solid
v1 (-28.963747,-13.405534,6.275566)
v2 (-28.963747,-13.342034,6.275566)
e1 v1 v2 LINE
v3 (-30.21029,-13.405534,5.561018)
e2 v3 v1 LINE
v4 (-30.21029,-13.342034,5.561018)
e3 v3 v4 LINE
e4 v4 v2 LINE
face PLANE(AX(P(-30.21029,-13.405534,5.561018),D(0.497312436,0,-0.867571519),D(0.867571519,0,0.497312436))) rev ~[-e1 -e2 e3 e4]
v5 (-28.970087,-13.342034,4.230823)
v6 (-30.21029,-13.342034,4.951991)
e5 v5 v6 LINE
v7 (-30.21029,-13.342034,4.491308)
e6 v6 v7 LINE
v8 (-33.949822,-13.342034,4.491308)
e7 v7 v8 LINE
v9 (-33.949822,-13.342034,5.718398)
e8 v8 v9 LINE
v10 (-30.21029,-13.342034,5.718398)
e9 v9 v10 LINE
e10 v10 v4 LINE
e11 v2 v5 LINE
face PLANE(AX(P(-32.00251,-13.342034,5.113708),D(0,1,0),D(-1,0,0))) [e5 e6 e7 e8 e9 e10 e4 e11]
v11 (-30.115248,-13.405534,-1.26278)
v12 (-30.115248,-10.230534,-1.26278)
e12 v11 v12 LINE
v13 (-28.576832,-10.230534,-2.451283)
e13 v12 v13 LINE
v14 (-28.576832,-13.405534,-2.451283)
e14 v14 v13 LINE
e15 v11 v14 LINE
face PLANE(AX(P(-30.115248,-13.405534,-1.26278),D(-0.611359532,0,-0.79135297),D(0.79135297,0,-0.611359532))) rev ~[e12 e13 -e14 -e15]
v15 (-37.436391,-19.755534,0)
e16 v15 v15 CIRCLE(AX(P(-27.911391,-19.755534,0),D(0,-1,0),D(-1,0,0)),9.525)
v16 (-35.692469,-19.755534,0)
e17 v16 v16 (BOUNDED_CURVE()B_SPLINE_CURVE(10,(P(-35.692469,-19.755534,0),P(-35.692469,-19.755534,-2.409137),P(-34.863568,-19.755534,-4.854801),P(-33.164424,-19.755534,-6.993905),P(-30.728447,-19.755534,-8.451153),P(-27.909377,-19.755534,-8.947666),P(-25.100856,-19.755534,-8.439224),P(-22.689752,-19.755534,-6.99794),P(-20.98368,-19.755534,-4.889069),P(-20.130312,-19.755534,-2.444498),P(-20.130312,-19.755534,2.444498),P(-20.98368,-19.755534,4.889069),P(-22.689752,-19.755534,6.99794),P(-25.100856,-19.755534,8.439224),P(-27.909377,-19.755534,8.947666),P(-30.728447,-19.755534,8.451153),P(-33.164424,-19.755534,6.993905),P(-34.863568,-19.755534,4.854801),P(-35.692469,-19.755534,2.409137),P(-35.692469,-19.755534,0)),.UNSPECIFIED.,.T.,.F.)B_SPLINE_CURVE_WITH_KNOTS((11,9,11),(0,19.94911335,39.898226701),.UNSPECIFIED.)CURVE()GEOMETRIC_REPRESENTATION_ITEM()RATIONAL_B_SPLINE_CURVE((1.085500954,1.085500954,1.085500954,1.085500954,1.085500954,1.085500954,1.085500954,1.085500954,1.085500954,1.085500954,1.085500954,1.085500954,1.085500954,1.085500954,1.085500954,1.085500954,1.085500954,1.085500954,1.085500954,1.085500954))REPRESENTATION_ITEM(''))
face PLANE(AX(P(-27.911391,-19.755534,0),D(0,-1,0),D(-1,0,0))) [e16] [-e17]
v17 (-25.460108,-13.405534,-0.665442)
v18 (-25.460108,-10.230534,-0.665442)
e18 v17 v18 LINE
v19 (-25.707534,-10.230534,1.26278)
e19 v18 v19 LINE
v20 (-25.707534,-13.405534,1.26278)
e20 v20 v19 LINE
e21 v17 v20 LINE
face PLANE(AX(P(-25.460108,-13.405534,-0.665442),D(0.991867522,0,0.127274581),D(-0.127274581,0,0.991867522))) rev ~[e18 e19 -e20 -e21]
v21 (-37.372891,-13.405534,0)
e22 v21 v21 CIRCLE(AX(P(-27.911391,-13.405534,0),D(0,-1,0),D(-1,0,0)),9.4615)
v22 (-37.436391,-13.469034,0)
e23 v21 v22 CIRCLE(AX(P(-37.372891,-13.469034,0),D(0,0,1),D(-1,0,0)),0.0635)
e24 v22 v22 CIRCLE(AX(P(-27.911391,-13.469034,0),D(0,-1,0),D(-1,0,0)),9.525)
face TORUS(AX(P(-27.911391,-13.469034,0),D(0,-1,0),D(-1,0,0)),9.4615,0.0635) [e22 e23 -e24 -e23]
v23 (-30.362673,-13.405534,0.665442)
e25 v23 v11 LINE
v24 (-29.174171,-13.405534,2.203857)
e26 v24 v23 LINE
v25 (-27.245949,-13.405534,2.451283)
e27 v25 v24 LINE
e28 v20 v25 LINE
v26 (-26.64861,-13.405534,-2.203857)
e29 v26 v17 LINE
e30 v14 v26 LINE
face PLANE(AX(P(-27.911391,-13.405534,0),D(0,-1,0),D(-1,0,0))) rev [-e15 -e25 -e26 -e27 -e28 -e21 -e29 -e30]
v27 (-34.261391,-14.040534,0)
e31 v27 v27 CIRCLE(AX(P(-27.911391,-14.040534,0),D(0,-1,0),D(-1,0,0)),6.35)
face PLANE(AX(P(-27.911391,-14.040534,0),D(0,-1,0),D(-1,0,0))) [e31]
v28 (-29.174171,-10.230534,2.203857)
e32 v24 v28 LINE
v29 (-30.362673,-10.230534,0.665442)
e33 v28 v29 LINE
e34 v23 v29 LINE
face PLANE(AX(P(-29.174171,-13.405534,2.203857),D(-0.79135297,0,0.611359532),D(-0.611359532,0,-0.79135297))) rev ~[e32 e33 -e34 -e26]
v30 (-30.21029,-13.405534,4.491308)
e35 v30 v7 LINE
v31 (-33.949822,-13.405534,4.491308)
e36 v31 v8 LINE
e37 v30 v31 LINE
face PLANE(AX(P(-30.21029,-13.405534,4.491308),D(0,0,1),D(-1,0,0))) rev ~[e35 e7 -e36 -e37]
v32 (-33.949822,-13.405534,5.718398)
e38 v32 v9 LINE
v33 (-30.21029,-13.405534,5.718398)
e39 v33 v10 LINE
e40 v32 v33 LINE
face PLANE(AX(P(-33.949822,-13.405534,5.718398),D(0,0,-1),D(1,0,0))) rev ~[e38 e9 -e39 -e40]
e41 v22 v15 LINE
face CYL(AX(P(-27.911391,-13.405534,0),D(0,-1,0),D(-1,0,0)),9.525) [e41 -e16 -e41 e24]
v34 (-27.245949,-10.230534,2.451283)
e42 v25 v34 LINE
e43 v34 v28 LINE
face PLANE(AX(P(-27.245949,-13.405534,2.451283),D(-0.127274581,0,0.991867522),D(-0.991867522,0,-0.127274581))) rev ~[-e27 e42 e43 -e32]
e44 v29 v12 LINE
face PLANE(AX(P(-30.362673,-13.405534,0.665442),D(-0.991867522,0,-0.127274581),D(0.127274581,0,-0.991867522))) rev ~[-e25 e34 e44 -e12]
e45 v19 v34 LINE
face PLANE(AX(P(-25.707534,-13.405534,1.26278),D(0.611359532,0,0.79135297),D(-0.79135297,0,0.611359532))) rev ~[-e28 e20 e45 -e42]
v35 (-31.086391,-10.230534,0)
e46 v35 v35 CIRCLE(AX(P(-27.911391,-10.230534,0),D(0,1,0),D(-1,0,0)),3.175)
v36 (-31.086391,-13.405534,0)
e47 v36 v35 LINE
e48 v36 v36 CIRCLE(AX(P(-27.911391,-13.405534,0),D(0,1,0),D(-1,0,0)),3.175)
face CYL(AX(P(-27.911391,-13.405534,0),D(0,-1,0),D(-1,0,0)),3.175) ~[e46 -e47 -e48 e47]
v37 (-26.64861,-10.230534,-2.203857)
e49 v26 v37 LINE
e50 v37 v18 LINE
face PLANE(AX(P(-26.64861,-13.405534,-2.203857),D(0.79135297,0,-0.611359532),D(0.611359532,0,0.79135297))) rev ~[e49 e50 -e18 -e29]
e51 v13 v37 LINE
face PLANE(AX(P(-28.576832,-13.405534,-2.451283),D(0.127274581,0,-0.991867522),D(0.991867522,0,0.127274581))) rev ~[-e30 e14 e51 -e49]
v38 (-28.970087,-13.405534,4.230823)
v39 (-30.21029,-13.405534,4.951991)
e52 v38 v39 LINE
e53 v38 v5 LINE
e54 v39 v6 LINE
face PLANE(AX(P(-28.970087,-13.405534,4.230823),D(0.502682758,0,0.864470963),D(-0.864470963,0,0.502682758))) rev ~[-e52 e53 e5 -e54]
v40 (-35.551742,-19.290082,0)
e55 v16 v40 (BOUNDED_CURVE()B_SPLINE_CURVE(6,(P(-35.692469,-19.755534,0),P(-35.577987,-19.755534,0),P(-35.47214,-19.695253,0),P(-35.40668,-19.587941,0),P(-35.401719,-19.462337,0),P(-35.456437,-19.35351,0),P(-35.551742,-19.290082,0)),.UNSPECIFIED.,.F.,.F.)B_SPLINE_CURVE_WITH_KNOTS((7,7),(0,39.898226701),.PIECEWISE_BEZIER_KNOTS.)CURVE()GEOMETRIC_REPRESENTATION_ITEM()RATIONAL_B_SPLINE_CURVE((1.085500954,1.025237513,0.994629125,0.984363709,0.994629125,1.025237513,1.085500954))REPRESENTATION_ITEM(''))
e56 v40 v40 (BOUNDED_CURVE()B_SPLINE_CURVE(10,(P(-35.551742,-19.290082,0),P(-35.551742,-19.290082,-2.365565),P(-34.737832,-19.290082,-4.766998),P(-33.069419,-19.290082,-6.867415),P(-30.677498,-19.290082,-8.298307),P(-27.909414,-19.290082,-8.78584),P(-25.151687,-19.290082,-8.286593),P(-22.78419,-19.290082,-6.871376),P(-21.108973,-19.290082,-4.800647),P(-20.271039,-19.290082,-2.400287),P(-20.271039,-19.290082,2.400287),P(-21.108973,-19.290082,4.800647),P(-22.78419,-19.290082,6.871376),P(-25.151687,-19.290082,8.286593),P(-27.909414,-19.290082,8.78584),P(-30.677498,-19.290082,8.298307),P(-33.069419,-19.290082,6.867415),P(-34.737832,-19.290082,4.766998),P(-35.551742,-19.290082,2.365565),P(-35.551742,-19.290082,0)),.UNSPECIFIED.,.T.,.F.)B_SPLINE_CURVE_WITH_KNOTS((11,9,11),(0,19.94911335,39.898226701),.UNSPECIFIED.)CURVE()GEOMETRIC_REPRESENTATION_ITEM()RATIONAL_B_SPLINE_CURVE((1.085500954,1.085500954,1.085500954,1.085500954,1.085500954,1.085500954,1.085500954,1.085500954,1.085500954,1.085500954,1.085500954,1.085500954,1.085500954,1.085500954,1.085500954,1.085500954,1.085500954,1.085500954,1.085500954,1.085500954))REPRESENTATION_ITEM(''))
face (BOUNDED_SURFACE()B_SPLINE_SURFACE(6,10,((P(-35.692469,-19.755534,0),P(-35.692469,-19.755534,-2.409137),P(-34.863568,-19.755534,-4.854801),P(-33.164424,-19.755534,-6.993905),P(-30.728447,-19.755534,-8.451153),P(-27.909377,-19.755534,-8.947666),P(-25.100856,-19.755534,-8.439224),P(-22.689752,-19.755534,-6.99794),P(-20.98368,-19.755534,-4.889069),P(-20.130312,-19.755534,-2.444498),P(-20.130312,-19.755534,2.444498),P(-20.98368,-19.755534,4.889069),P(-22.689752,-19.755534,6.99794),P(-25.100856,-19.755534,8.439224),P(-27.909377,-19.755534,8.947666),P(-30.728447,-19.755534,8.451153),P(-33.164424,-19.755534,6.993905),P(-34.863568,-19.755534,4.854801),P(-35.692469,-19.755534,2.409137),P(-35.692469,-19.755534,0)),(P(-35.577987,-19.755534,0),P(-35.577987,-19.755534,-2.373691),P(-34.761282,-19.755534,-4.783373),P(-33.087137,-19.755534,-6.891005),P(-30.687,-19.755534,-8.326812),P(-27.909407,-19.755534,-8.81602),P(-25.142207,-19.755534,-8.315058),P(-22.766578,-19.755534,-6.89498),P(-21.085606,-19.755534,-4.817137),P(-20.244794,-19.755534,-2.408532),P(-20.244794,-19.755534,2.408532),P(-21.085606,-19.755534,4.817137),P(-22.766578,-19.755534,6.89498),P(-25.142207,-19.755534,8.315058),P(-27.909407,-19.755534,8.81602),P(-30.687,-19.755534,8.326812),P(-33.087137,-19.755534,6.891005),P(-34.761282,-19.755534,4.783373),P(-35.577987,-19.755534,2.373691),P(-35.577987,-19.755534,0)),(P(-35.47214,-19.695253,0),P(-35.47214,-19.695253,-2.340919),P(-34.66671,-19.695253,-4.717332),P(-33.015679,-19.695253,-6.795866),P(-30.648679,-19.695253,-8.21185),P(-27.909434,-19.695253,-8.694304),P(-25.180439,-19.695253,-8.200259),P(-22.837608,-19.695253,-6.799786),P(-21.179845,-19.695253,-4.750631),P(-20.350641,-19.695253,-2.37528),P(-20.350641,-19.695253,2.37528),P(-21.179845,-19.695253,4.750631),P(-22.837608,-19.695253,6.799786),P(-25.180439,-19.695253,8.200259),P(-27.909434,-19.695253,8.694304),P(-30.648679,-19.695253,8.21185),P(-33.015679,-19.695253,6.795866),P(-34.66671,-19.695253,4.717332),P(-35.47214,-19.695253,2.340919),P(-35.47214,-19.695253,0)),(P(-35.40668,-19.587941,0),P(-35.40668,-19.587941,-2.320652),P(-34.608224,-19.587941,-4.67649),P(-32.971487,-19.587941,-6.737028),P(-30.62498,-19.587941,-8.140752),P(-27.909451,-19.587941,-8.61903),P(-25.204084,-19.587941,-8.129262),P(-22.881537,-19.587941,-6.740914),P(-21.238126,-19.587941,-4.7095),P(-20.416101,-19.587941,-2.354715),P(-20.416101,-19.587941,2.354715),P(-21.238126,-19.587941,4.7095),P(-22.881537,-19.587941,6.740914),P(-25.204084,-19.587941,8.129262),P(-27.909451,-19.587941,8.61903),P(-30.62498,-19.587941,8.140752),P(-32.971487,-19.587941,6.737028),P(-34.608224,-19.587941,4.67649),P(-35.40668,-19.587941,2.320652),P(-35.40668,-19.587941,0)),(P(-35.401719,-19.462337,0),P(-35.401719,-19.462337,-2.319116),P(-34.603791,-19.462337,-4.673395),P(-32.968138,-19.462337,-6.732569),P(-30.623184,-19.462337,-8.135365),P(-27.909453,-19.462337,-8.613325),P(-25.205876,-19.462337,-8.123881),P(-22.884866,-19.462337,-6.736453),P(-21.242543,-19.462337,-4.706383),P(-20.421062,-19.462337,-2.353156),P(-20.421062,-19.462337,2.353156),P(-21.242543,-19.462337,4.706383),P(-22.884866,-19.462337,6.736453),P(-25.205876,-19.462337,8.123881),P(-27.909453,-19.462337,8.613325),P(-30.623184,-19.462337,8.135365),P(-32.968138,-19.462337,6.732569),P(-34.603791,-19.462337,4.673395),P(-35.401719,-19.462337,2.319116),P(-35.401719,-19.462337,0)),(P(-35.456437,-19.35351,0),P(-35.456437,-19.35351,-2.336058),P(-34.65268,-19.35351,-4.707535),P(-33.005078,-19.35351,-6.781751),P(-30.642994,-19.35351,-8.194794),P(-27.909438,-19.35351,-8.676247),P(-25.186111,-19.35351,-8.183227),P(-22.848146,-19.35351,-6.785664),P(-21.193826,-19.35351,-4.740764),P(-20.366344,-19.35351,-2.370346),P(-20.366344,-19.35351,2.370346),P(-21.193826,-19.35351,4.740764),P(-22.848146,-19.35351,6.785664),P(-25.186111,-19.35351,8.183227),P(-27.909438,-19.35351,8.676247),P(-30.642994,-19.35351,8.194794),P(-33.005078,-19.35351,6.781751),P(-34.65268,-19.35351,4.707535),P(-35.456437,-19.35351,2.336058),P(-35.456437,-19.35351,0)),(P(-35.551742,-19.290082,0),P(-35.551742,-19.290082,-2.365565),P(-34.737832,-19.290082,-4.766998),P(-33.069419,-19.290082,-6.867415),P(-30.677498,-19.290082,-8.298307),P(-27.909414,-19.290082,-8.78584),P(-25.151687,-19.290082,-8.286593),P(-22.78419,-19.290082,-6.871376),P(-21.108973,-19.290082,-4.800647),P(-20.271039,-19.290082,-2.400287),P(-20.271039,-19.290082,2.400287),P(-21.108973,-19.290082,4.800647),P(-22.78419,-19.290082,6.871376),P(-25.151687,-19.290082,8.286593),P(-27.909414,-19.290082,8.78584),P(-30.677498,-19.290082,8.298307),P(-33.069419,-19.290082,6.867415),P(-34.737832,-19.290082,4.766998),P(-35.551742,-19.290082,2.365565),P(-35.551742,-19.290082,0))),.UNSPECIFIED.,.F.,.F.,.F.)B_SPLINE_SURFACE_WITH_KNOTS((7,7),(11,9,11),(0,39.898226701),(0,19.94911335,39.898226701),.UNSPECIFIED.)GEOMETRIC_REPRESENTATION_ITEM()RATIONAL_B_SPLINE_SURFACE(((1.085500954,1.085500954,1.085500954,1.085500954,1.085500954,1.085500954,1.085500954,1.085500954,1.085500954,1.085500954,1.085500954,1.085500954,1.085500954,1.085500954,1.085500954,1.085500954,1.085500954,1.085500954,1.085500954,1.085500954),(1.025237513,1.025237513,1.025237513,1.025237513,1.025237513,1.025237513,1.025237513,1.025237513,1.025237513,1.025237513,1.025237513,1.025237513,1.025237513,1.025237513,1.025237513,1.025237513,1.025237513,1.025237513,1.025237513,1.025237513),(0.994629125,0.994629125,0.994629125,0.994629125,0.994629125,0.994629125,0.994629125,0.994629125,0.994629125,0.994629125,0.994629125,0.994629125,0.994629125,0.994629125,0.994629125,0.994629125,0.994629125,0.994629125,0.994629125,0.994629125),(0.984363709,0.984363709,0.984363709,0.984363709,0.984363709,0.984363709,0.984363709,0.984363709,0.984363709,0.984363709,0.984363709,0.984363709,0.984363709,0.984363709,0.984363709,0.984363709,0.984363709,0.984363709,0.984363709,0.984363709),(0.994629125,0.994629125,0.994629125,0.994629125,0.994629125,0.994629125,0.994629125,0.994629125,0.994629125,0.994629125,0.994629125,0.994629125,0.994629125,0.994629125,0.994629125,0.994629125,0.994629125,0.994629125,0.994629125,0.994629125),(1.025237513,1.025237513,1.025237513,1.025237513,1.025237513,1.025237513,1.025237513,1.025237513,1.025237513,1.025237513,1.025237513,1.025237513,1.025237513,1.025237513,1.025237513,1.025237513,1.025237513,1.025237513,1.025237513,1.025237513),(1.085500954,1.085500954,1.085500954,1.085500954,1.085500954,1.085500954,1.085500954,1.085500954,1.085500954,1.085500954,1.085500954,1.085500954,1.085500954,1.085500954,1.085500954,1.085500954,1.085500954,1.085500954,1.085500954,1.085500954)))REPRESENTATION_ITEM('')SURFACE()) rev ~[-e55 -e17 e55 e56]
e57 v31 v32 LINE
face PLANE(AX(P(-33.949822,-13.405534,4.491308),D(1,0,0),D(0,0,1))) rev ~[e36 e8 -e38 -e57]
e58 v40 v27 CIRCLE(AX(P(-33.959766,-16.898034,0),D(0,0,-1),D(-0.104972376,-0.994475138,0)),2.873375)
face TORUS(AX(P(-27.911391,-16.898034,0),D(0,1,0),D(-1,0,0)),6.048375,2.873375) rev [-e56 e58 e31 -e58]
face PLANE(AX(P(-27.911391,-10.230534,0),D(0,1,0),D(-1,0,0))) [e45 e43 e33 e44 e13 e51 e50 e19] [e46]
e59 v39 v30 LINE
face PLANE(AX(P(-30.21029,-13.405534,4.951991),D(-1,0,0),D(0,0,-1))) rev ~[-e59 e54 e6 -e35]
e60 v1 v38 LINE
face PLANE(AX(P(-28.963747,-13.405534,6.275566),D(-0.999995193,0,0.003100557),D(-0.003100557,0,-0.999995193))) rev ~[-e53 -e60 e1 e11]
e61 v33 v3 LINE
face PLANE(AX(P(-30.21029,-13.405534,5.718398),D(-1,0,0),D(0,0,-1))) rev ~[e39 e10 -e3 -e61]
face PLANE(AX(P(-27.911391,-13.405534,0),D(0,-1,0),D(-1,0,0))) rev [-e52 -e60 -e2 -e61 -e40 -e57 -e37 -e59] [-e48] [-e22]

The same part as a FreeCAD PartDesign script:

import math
import FreeCAD as App
import Part
import Sketcher

V = App.Vector
Q = App.Units.Quantity


def edges_at(feature, points):
    """Names of the edges that pass closest to the given points."""
    edges = feature.Shape.Edges
    near = lambda p: min(range(len(edges)), key=lambda i: edges[i].distToShape(Part.Vertex(*p))[0])
    return sorted({f"Edge{near(p) + 1}" for p in points})


def add_polygon(sketch, points):
    """Adds a closed chain of lines whose ends are joined by coincident constraints."""
    first, n = sketch.GeometryCount, len(points)
    for a, b in zip(points, points[1:] + points[:1]):
        sketch.addGeometry(Part.LineSegment(App.Vector(*a, 0), App.Vector(*b, 0)), False)
    for i in range(n):
        sketch.addConstraint(Sketcher.Constraint("Coincident", first + i, 2, first + (i + 1) % n, 1))

doc = App.newDocument("Part")
body = doc.addObject("PartDesign::Body", "Body")

# Sketch on XY plane
sketch1 = doc.addObject("Sketcher::SketchObject", "Sketch")
body.addObject(sketch1)
sketch1.AttachmentSupport = (doc.XY_Plane, [""])
sketch1.MapMode = "FlatFace"
sketch1.addGeometry(Part.LineSegment(V(-27.9, -13.4, 0), V(-37.4, -13.4, 0)), False)
sketch1.addGeometry(Part.LineSegment(V(-37.4, -13.4, 0), V(-37.4, -19.8, 0)), False)
sketch1.addGeometry(Part.LineSegment(V(-37.4, -19.8, 0), V(-34.3, -19.8, 0)), False)
sketch1.addGeometry(Part.ArcOfCircle(Part.Circle(V(-34, -16.9, 0), V(0, 0, 1), 2.9), math.radians(96), math.radians(264)), False)
sketch1.addGeometry(Part.LineSegment(V(-34.3, -14, 0), V(-27.9, -14, 0)), False)
sketch1.addGeometry(Part.LineSegment(V(-27.9, -14, 0), V(-27.9, -13.4, 0)), False)
sketch1.addGeometry(Part.LineSegment(V(-27.9, -13.4, 0), V(-27.9, -19.8, 0)), True)  # axis
sketch1.addConstraint(Sketcher.Constraint("Coincident", 0, 2, 1, 1))
sketch1.addConstraint(Sketcher.Constraint("Coincident", 1, 2, 2, 1))
sketch1.addConstraint(Sketcher.Constraint("Coincident", 2, 2, 3, 2))
sketch1.addConstraint(Sketcher.Constraint("Coincident", 3, 1, 4, 1))
sketch1.addConstraint(Sketcher.Constraint("Coincident", 4, 2, 5, 1))
sketch1.addConstraint(Sketcher.Constraint("Coincident", 5, 2, 0, 1))
sketch1.addConstraint(Sketcher.Constraint("Horizontal", 0))
sketch1.addConstraint(Sketcher.Constraint("Vertical", 1))
sketch1.addConstraint(Sketcher.Constraint("Horizontal", 2))
sketch1.addConstraint(Sketcher.Constraint("Horizontal", 4))
sketch1.addConstraint(Sketcher.Constraint("Vertical", 5))
sketch1.addConstraint(Sketcher.Constraint("Vertical", 6))
sketch1.addConstraint(Sketcher.Constraint("Coincident", 6, 1, 5, 2))
sketch1.addConstraint(Sketcher.Constraint("Horizontal", 2, 2, 6, 2))
sketch1.addConstraint(Sketcher.Constraint("Vertical", 2, 2, 3, 1))
sketch1.addConstraint(Sketcher.Constraint("Equal", 4, 1))
sketch1.addConstraint(Sketcher.Constraint("DistanceX", 4, 1, 4, 2, Q("0.25 in")))
sketch1.addConstraint(Sketcher.Constraint("DistanceX", 0, 2, 0, 1, Q("0.375 in")))
sketch1.addConstraint(Sketcher.Constraint("DistanceY", 5, 1, 5, 2, Q("0.025 in")))
sketch1.addConstraint(Sketcher.Constraint("Radius", 3, Q("2.873375 mm")))
sketch1.addConstraint(Sketcher.Constraint("DistanceX", 0, 2, -1, 1, Q("37.436391 mm")))
sketch1.addConstraint(Sketcher.Constraint("DistanceY", 3, 3, -1, 1, Q("16.898034 mm")))
revolution = doc.addObject("PartDesign::Revolution", "Revolution")
body.addObject(revolution)
revolution.Profile = sketch1
revolution.ReferenceAxis = (sketch1, ["Axis0"])
revolution.Angle = 360

# Sketch on XZ plane
sketch2 = doc.addObject("Sketcher::SketchObject", "Sketch001")
body.addObject(sketch2)
sketch2.AttachmentSupport = (doc.XZ_Plane, [""])
sketch2.MapMode = "FlatFace"
sketch2.AttachmentOffset = App.Placement(V(0, 0, 13.405534), App.Rotation())
sketch2.addGeometry(Part.Circle(V(-27.9, 0, 0), V(0, 0, 1), 3.2), False)  # 0
add_polygon(sketch2, [(-30.4, 0.7), (-30.1, -1.3), (-28.6, -2.5), (-26.6, -2.2), (-25.5, -0.7), (-25.7, 1.3), (-27.2, 2.5), (-29.2, 2.2)])  # lines 1-8
sketch2.addConstraint(Sketcher.Constraint("PointOnObject", 0, 3, -1))
sketch2.addConstraint(Sketcher.Constraint("Perpendicular", 1, 3))
sketch2.addConstraint(Sketcher.Constraint("Perpendicular", 2, 4))
sketch2.addConstraint(Sketcher.Constraint("Perpendicular", 3, 5))
sketch2.addConstraint(Sketcher.Constraint("Perpendicular", 4, 6))
sketch2.addConstraint(Sketcher.Constraint("Perpendicular", 5, 7))
sketch2.addConstraint(Sketcher.Constraint("Perpendicular", 6, 8))
sketch2.addConstraint(Sketcher.Constraint("Equal", 1, 2))
sketch2.addConstraint(Sketcher.Constraint("Equal", 2, 3))
sketch2.addConstraint(Sketcher.Constraint("Equal", 3, 4))
sketch2.addConstraint(Sketcher.Constraint("Equal", 4, 5))
sketch2.addConstraint(Sketcher.Constraint("Equal", 5, 6))
sketch2.addConstraint(Sketcher.Constraint("Diameter", 0, Q("0.25 in")))
sketch2.addConstraint(Sketcher.Constraint("DistanceX", 2, 2, 5, 2, Q("2.869299 mm")))
sketch2.addConstraint(Sketcher.Constraint("Distance", 1, Q("1.944032 mm")))
sketch2.addConstraint(Sketcher.Constraint("DistanceX", 0, 3, -1, 1, Q("27.911391 mm")))
sketch2.addConstraint(Sketcher.Constraint("DistanceY", 1, 2, -1, 1, Q("1.26278 mm")))
sketch2.addConstraint(Sketcher.Constraint("DistanceX", 3, 2, -1, 1, Q("26.64861 mm")))
sketch2.addConstraint(Sketcher.Constraint("DistanceY", 4, 2, -1, 1, Q("0.665442 mm")))
pad1 = doc.addObject("PartDesign::Pad", "Pad")
body.addObject(pad1)
pad1.Profile = sketch2
pad1.Length = Q("0.125 in")
pad1.Reversed = True
doc.recompute()

fillet = doc.addObject("PartDesign::Fillet", "Fillet")
body.addObject(fillet)
fillet.Base = (pad1, edges_at(pad1, [(-18.386, -13.406, 0)]))
fillet.Radius = Q("0.0025 in")
doc.recompute()

fillet2 = doc.addObject("PartDesign::Fillet", "Fillet001")
body.addObject(fillet2)
fillet2.Base = (fillet, edges_at(fillet, [(-21.561, -19.756, 0)]))
fillet2.Radius = Q("0.01 in")

# Sketch on XZ plane
sketch3 = doc.addObject("Sketcher::SketchObject", "Sketch002")
body.addObject(sketch3)
sketch3.AttachmentSupport = (doc.XZ_Plane, [""])
sketch3.MapMode = "FlatFace"
sketch3.AttachmentOffset = App.Placement(V(0, 0, 13.405534), App.Rotation())
add_polygon(sketch3, [(-30.21, 4.49), (-33.95, 4.49), (-33.95, 5.72), (-30.21, 5.72), (-30.21, 5.56), (-28.96, 6.28), (-28.97, 4.23), (-30.21, 4.95)])  # lines 0-7
sketch3.addConstraint(Sketcher.Constraint("Horizontal", 0))
sketch3.addConstraint(Sketcher.Constraint("Vertical", 1))
sketch3.addConstraint(Sketcher.Constraint("Horizontal", 2))
sketch3.addConstraint(Sketcher.Constraint("Vertical", 3))
sketch3.addConstraint(Sketcher.Constraint("Vertical", 7))
sketch3.addConstraint(Sketcher.Constraint("Vertical", 3, 2, 6, 2))
sketch3.addConstraint(Sketcher.Constraint("DistanceY", 1, 1, 1, 2, Q("1.22709 mm")))
sketch3.addConstraint(Sketcher.Constraint("DistanceY", 3, 2, 3, 1, Q("0.15738 mm")))
sketch3.addConstraint(Sketcher.Constraint("Distance", 4, Q("1.436819 mm")))
sketch3.addConstraint(Sketcher.Constraint("Distance", 6, Q("1.434638 mm")))
sketch3.addConstraint(Sketcher.Constraint("DistanceX", 0, 2, 0, 1, Q("3.739532 mm")))
sketch3.addConstraint(Sketcher.Constraint("DistanceY", 7, 2, 7, 1, Q("0.460683 mm")))
sketch3.addConstraint(Sketcher.Constraint("DistanceY", -1, 1, 0, 2, Q("4.491308 mm")))
sketch3.addConstraint(Sketcher.Constraint("DistanceX", 2, 2, -1, 1, Q("30.21029 mm")))
sketch3.addConstraint(Sketcher.Constraint("DistanceY", 2, 2, 4, 2, Q("0.557168 mm")))
sketch3.addConstraint(Sketcher.Constraint("DistanceX", 5, 2, 4, 2, Q("0.00634 mm")))
pad2 = doc.addObject("PartDesign::Pad", "Pad001")
body.addObject(pad2)
pad2.Profile = sketch3
pad2.Length = Q("0.0025 in")
pad2.Reversed = True

doc.recompute()
